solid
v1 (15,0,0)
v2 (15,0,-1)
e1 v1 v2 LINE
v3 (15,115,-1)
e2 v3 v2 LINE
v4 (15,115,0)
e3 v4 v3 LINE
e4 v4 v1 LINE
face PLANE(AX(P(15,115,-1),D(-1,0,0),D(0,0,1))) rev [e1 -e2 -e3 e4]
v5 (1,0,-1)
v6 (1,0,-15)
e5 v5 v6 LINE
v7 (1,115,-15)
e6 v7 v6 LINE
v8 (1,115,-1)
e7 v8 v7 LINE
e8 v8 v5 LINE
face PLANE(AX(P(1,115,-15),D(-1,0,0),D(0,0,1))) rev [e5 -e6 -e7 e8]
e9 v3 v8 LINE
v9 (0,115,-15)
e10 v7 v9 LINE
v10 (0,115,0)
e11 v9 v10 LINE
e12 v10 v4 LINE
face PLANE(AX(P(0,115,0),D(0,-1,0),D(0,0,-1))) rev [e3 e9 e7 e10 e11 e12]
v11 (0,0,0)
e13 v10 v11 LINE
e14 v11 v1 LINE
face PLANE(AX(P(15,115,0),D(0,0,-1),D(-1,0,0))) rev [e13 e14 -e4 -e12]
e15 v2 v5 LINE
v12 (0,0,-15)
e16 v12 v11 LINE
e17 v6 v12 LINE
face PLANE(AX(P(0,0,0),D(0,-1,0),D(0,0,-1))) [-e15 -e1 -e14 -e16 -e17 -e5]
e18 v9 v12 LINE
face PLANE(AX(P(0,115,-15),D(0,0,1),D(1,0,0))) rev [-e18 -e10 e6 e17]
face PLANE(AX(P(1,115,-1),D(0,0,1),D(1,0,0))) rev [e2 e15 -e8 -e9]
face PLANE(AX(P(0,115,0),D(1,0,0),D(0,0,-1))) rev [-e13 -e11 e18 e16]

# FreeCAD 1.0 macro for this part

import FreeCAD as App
import Part
import Sketcher

V = App.Vector
Q = App.Units.Quantity


def add_polygon(sketch, points):
    """Adds a closed chain of lines whose ends are joined by coincident constraints."""
    first, n = sketch.GeometryCount, len(points)
    for a, b in zip(points, points[1:] + points[:1]):
        sketch.addGeometry(Part.LineSegment(App.Vector(*a, 0), App.Vector(*b, 0)), False)
    for i in range(n):
        sketch.addConstraint(Sketcher.Constraint("Coincident", first + i, 2, first + (i + 1) % n, 1))

doc = App.newDocument("Part")
body = doc.addObject("PartDesign::Body", "Body")

sketch1 = body.newObject("Sketcher::SketchObject", "Sketch")
sketch1.AttachmentSupport = (doc.getObject("XZ_Plane"), [""])
sketch1.MapMode = "FlatFace"
add_polygon(sketch1, [(0, -15), (0, 0), (15, 0), (15, -1), (1, -1), (1, -15)])
sketch1.addConstraint(Sketcher.Constraint("Vertical", 0))
sketch1.addConstraint(Sketcher.Constraint("Horizontal", 1))
sketch1.addConstraint(Sketcher.Constraint("Vertical", 2))
sketch1.addConstraint(Sketcher.Constraint("Horizontal", 3))
sketch1.addConstraint(Sketcher.Constraint("Vertical", 4))
sketch1.addConstraint(Sketcher.Constraint("Horizontal", 5))
sketch1.addConstraint(Sketcher.Constraint("Coincident", 0, 2, -1, 1))
sketch1.addConstraint(Sketcher.Constraint("Equal", 1, 0))
sketch1.addConstraint(Sketcher.Constraint("Equal", 5, 2))
sketch1.addConstraint(Sketcher.Constraint("DistanceX", 1, 1, 1, 2, Q("15 mm")))
sketch1.addConstraint(Sketcher.Constraint("DistanceX", 3, 2, 3, 1, Q("14 mm")))
pad1 = body.newObject("PartDesign::Pad", "Pad")
pad1.Profile = sketch1
pad1.Length = 115
pad1.Reversed = True

doc.recompute()
